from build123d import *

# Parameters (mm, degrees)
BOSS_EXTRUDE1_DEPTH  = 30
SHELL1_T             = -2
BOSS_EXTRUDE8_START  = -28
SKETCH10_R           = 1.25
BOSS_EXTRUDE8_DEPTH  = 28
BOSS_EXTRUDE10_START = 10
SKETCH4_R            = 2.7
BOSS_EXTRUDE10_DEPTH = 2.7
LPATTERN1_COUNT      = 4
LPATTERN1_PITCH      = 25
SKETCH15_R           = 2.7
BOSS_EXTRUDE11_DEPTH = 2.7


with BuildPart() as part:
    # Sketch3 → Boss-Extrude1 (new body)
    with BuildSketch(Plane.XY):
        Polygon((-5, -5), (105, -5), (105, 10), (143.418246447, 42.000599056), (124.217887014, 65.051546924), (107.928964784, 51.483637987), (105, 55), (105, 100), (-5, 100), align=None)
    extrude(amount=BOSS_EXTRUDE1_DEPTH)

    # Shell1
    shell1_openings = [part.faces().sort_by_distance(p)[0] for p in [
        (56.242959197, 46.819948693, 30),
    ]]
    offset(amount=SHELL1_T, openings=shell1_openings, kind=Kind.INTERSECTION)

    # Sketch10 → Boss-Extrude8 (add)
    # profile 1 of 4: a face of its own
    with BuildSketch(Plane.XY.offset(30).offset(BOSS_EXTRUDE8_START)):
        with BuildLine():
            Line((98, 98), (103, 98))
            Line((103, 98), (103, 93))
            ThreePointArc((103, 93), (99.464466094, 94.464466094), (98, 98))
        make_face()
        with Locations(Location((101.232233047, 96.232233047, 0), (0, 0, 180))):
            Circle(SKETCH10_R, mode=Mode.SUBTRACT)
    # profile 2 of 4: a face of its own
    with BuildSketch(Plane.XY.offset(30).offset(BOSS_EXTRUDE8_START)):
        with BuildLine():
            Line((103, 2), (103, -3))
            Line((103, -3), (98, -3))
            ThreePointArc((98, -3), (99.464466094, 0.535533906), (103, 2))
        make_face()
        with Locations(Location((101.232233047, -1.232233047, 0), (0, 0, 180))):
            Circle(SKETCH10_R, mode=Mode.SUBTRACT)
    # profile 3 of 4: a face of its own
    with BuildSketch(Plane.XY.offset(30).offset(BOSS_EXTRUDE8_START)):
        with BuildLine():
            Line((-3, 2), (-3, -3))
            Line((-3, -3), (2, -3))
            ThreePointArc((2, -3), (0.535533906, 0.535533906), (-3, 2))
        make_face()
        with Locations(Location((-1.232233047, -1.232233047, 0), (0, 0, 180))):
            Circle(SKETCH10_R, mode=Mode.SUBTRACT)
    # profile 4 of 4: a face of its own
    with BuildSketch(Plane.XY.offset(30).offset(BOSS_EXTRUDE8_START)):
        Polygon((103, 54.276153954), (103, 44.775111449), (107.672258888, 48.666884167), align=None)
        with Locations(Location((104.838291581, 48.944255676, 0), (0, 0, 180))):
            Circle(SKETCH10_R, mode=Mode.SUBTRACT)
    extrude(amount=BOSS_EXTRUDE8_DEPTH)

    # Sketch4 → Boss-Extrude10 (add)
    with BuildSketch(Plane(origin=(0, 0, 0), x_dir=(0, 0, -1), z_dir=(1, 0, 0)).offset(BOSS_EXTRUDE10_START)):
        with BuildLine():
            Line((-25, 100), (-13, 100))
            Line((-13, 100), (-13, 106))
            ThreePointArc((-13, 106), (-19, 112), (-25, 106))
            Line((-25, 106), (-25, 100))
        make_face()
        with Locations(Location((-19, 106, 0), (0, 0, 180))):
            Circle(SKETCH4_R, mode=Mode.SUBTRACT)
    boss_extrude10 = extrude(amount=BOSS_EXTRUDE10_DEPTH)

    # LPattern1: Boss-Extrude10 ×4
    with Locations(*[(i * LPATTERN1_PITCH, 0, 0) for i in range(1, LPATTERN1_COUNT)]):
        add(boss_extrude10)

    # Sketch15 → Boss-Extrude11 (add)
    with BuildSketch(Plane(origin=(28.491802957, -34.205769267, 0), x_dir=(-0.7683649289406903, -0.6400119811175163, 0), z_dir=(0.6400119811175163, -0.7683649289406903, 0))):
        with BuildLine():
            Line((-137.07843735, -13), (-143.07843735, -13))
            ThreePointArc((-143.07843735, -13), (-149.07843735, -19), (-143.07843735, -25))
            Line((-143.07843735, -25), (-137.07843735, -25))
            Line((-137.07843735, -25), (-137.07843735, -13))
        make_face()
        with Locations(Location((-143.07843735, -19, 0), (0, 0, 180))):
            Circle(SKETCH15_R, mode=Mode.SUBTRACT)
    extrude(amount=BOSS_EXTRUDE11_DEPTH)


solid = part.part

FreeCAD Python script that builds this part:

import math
import FreeCAD as App
import Part
import Sketcher

V = App.Vector
Q = App.Units.Quantity


def faces_at(feature, points):
    """Names of the faces that lie closest to the given points."""
    faces = feature.Shape.Faces
    near = lambda p: min(range(len(faces)), key=lambda i: faces[i].distToShape(Part.Vertex(*p))[0])
    return sorted({f"Face{near(p) + 1}" for p in points})


def add_polygon(sketch, points):
    """Adds a closed chain of lines whose ends are joined by coincident constraints."""
    first, n = sketch.GeometryCount, len(points)
    for a, b in zip(points, points[1:] + points[:1]):
        sketch.addGeometry(Part.LineSegment(App.Vector(*a, 0), App.Vector(*b, 0)), False)
    for i in range(n):
        sketch.addConstraint(Sketcher.Constraint("Coincident", first + i, 2, first + (i + 1) % n, 1))

doc = App.newDocument("Part")
body = doc.addObject("PartDesign::Body", "Body")

sketch1 = doc.addObject("Sketcher::SketchObject", "Sketch")
body.addObject(sketch1)
sketch1.AttachmentSupport = (doc.XY_Plane, [""])
sketch1.MapMode = "FlatFace"
add_polygon(sketch1, [(-5, -5), (105, -5), (105, 10), (143.4, 42), (124.2, 65.1), (107.9, 51.5), (105, 55), (105, 100), (-5, 100)])
sketch1.addConstraint([
    Sketcher.Constraint("Horizontal", 0),
    Sketcher.Constraint("Vertical", 1),
    Sketcher.Constraint("Vertical", 6),
    Sketcher.Constraint("Horizontal", 7),
    Sketcher.Constraint("Vertical", 8),
    Sketcher.Constraint("Perpendicular", 2, 3),
    Sketcher.Constraint("Perpendicular", 3, 4),
    Sketcher.Constraint("Perpendicular", 4, 5),
    Sketcher.Constraint("Vertical", 1, 2, 5, 2),
    Sketcher.Constraint("DistanceX", 0, 1, 0, 2, Q("110 mm")),
    Sketcher.Constraint("DistanceY", 1, 1, 1, 2, Q("15 mm")),
    Sketcher.Constraint("DistanceY", 6, 1, 6, 2, Q("45 mm")),
    Sketcher.Constraint("DistanceY", 8, 2, 8, 1, Q("105 mm")),
    Sketcher.Constraint("Distance", 2, Q("50 mm")),
    Sketcher.Constraint("Distance", 3, Q("30 mm")),
    Sketcher.Constraint("DistanceX", -1, 1, 0, 2, Q("105 mm")),
    Sketcher.Constraint("DistanceY", 0, 2, -1, 1, Q("5 mm")),
    Sketcher.Constraint("DistanceY", -1, 1, 2, 2, Q("42.000599 mm")),
])
pad1 = doc.addObject("PartDesign::Pad", "Pad")
body.addObject(pad1)
pad1.Profile = sketch1
pad1.Length = 30
doc.recompute()

thickness = doc.addObject("PartDesign::Thickness", "Thickness")
body.addObject(thickness)
thickness.Base = (pad1, faces_at(pad1, [(69.209, 47.5, 30)]))
thickness.Value = 2
thickness.Reversed = True
thickness.Join = "Intersection"

sketch2 = doc.addObject("Sketcher::SketchObject", "Sketch001")
body.addObject(sketch2)
sketch2.AttachmentSupport = (doc.XY_Plane, [""])
sketch2.MapMode = "FlatFace"
sketch2.AttachmentOffset = App.Placement(V(0, 0, 2), App.Rotation())
sketch2.addGeometry(Part.LineSegment(V(103, 98, 0), V(98, 98, 0)), False)
sketch2.addGeometry(Part.ArcOfCircle(Part.Circle(V(103, 98, 0), V(0, 0, 1), 5), math.radians(180), math.radians(270)), False)
sketch2.addGeometry(Part.LineSegment(V(103, 93, 0), V(103, 98, 0)), False)
sketch2.addGeometry(Part.Circle(V(101.2, 96.2, 0), V(0, 0, 1), 1.2), False)
sketch2.addGeometry(Part.LineSegment(V(103, -3, 0), V(103, 2, 0)), False)
sketch2.addGeometry(Part.ArcOfCircle(Part.Circle(V(103, -3, 0), V(0, 0, 1), 5), math.radians(90), math.radians(180)), False)
sketch2.addGeometry(Part.LineSegment(V(98, -3, 0), V(103, -3, 0)), False)
sketch2.addGeometry(Part.Circle(V(101.2, -1.2, 0), V(0, 0, 1), 1.2), False)
sketch2.addGeometry(Part.LineSegment(V(-3, 2, 0), V(-3, -3, 0)), False)
sketch2.addGeometry(Part.LineSegment(V(-3, -3, 0), V(2, -3, 0)), False)
sketch2.addGeometry(Part.ArcOfCircle(Part.Circle(V(-3, -3, 0), V(0, 0, 1), 5), math.radians(0), math.radians(90)), False)
sketch2.addGeometry(Part.Circle(V(-1.2, -1.2, 0), V(0, 0, 1), 1.2), False)
add_polygon(sketch2, [(103, 54.3), (103, 44.8), (107.7, 48.7)])
sketch2.addGeometry(Part.Circle(V(104.8, 48.9, 0), V(0, 0, 1), 1.2), False)
sketch2.addConstraint([
    Sketcher.Constraint("Coincident", 0, 2, 1, 1),
    Sketcher.Constraint("Coincident", 1, 2, 2, 1),
    Sketcher.Constraint("Coincident", 2, 2, 0, 1),
    Sketcher.Constraint("Coincident", 4, 2, 5, 1),
    Sketcher.Constraint("Coincident", 5, 2, 6, 1),
    Sketcher.Constraint("Coincident", 6, 2, 4, 1),
    Sketcher.Constraint("Coincident", 8, 2, 9, 1),
    Sketcher.Constraint("Coincident", 9, 2, 10, 1),
    Sketcher.Constraint("Coincident", 10, 2, 8, 1),
    Sketcher.Constraint("Horizontal", 0),
    Sketcher.Constraint("Vertical", 2),
    Sketcher.Constraint("Vertical", 4),
    Sketcher.Constraint("Horizontal", 6),
    Sketcher.Constraint("Vertical", 8),
    Sketcher.Constraint("Horizontal", 9),
    Sketcher.Constraint("Vertical", 12),
    Sketcher.Constraint("Coincident", 2, 2, 1, 3),
    Sketcher.Constraint("Coincident", 6, 2, 5, 3),
    Sketcher.Constraint("Coincident", 8, 2, 10, 3),
    Sketcher.Constraint("Equal", 1, 5),
    Sketcher.Constraint("Equal", 3, 7),
    Sketcher.Constraint("Equal", 5, 10),
    Sketcher.Constraint("Equal", 7, 11),
    Sketcher.Constraint("Equal", 11, 15),
    Sketcher.Constraint("Perpendicular", 13, 14),
    Sketcher.Constraint("Horizontal", 5, 3, 10, 3),
    Sketcher.Constraint("Horizontal", 7, 3, 11, 3),
    Sketcher.Constraint("Vertical", 1, 3, 5, 3),
    Sketcher.Constraint("Vertical", 3, 3, 7, 3),
    Sketcher.Constraint("Vertical", 6, 2, 12, 2),
    Sketcher.Constraint("Radius", 1, Q("5 mm")),
    Sketcher.Constraint("Diameter", 3, Q("2.5 mm")),
    Sketcher.Constraint("DistanceX", -1, 1, 1, 3, Q("103 mm")),
    Sketcher.Constraint("DistanceY", -1, 1, 1, 3, Q("98 mm")),
    Sketcher.Constraint("DistanceY", 5, 3, -1, 1, Q("3 mm")),
    Sketcher.Constraint("DistanceX", 10, 3, -1, 1, Q("3 mm")),
    Sketcher.Constraint("DistanceY", 15, 3, 14, 2, Q("5.331898 mm")),
    Sketcher.Constraint("Distance", 13, Q("6.080781 mm")),
    Sketcher.Constraint("DistanceY", 12, 2, 12, 1, Q("9.501043 mm")),
    Sketcher.Constraint("DistanceX", -1, 1, 15, 3, Q("104.838292 mm")),
    Sketcher.Constraint("DistanceY", -1, 1, 12, 2, Q("44.775111 mm")),
    Sketcher.Constraint("DistanceX", 3, 3, 15, 3, Q("3.606059 mm")),
    Sketcher.Constraint("DistanceY", 7, 3, 15, 3, Q("50.176489 mm")),
    Sketcher.Constraint("DistanceY", 13, 2, 3, 3, Q("47.565349 mm")),
    Sketcher.Constraint("DistanceX", 11, 3, -1, 1, Q("1.232233 mm")),
])
pad2 = doc.addObject("PartDesign::Pad", "Pad001")
body.addObject(pad2)
pad2.Profile = sketch2
pad2.Length = 28

sketch3 = doc.addObject("Sketcher::SketchObject", "Sketch002")
body.addObject(sketch3)
sketch3.AttachmentSupport = (doc.YZ_Plane, [""])
sketch3.MapMode = "FlatFace"
sketch3.AttachmentOffset = App.Placement(V(0, 0, 10), App.Rotation())
sketch3.addGeometry([
    Part.LineSegment(V(100, 25, 0), V(100, 13, 0)),
    Part.LineSegment(V(100, 13, 0), V(106, 13, 0)),
    Part.ArcOfCircle(Part.Circle(V(106, 19, 0), V(0, 0, 1), 6), math.radians(-90), math.radians(90)),
    Part.LineSegment(V(106, 25, 0), V(100, 25, 0)),
    Part.Circle(V(106, 19, 0), V(0, 0, 1), 2.7),
], False)
sketch3.addConstraint([
    Sketcher.Constraint("Coincident", 0, 2, 1, 1),
    Sketcher.Constraint("Tangent", 1, 2, 2, 1),
    Sketcher.Constraint("Tangent", 2, 2, 3, 1),
    Sketcher.Constraint("Coincident", 3, 2, 0, 1),
    Sketcher.Constraint("Vertical", 0),
    Sketcher.Constraint("Horizontal", 1),
    Sketcher.Constraint("Horizontal", 3),
    Sketcher.Constraint("Coincident", 4, 3, 2, 3),
    Sketcher.Constraint("Radius", 2, Q("6 mm")),
    Sketcher.Constraint("Diameter", 4, Q("5.4 mm")),
    Sketcher.Constraint("DistanceX", 1, 1, 1, 2, Q("6 mm")),
    Sketcher.Constraint("DistanceX", -1, 1, 2, 3, Q("106 mm")),
    Sketcher.Constraint("DistanceY", -1, 1, 2, 3, Q("19 mm")),
])
pad3 = doc.addObject("PartDesign::Pad", "Pad002")
body.addObject(pad3)
pad3.Profile = sketch3
pad3.Length = 2.7
doc.recompute()

linearpattern = doc.addObject("PartDesign::LinearPattern", "LinearPattern")
body.addObject(linearpattern)
linearpattern.Originals = [pad3]
linearpattern.Direction = (doc.X_Axis, [""])
linearpattern.Mode = "offset"
linearpattern.Offset = 25
linearpattern.Occurrences = 4
body.Tip = linearpattern

sketch4 = doc.addObject("Sketcher::SketchObject", "Sketch003")
body.addObject(sketch4)
sketch4.Placement = App.Placement(V(28.491803, -34.205769, 0), App.Rotation(V(-0.768364929, -0.640011981, 0), V(0, 0, -1), V(0.640011981, -0.768364929, 0), "ZXY"))
sketch4.addGeometry([
    Part.LineSegment(V(-137.1, -13, 0), V(-143.1, -13, 0)),
    Part.ArcOfCircle(Part.Circle(V(-143.1, -19, 0), V(0, 0, 1), 6), math.radians(90), math.radians(270)),
    Part.LineSegment(V(-143.1, -25, 0), V(-137.1, -25, 0)),
    Part.LineSegment(V(-137.1, -25, 0), V(-137.1, -13, 0)),
    Part.Circle(V(-143.1, -19, 0), V(0, 0, 1), 2.7),
], False)
sketch4.addConstraint([
    Sketcher.Constraint("Tangent", 0, 2, 1, 1),
    Sketcher.Constraint("Tangent", 1, 2, 2, 1),
    Sketcher.Constraint("Coincident", 2, 2, 3, 1),
    Sketcher.Constraint("Coincident", 3, 2, 0, 1),
    Sketcher.Constraint("Horizontal", 0),
    Sketcher.Constraint("Horizontal", 2),
    Sketcher.Constraint("Vertical", 3),
    Sketcher.Constraint("Coincident", 4, 3, 1, 3),
    Sketcher.Constraint("Radius", 1, Q("6 mm")),
    Sketcher.Constraint("Diameter", 4, Q("5.4 mm")),
    Sketcher.Constraint("DistanceX", 0, 2, 0, 1, Q("6 mm")),
    Sketcher.Constraint("DistanceY", 1, 3, -1, 1, Q("19 mm")),
    Sketcher.Constraint("DistanceX", 1, 3, -1, 1, Q("143.078437 mm")),
])
pad4 = doc.addObject("PartDesign::Pad", "Pad003")
body.addObject(pad4)
pad4.Profile = sketch4
pad4.Length = 2.7

doc.recompute()
